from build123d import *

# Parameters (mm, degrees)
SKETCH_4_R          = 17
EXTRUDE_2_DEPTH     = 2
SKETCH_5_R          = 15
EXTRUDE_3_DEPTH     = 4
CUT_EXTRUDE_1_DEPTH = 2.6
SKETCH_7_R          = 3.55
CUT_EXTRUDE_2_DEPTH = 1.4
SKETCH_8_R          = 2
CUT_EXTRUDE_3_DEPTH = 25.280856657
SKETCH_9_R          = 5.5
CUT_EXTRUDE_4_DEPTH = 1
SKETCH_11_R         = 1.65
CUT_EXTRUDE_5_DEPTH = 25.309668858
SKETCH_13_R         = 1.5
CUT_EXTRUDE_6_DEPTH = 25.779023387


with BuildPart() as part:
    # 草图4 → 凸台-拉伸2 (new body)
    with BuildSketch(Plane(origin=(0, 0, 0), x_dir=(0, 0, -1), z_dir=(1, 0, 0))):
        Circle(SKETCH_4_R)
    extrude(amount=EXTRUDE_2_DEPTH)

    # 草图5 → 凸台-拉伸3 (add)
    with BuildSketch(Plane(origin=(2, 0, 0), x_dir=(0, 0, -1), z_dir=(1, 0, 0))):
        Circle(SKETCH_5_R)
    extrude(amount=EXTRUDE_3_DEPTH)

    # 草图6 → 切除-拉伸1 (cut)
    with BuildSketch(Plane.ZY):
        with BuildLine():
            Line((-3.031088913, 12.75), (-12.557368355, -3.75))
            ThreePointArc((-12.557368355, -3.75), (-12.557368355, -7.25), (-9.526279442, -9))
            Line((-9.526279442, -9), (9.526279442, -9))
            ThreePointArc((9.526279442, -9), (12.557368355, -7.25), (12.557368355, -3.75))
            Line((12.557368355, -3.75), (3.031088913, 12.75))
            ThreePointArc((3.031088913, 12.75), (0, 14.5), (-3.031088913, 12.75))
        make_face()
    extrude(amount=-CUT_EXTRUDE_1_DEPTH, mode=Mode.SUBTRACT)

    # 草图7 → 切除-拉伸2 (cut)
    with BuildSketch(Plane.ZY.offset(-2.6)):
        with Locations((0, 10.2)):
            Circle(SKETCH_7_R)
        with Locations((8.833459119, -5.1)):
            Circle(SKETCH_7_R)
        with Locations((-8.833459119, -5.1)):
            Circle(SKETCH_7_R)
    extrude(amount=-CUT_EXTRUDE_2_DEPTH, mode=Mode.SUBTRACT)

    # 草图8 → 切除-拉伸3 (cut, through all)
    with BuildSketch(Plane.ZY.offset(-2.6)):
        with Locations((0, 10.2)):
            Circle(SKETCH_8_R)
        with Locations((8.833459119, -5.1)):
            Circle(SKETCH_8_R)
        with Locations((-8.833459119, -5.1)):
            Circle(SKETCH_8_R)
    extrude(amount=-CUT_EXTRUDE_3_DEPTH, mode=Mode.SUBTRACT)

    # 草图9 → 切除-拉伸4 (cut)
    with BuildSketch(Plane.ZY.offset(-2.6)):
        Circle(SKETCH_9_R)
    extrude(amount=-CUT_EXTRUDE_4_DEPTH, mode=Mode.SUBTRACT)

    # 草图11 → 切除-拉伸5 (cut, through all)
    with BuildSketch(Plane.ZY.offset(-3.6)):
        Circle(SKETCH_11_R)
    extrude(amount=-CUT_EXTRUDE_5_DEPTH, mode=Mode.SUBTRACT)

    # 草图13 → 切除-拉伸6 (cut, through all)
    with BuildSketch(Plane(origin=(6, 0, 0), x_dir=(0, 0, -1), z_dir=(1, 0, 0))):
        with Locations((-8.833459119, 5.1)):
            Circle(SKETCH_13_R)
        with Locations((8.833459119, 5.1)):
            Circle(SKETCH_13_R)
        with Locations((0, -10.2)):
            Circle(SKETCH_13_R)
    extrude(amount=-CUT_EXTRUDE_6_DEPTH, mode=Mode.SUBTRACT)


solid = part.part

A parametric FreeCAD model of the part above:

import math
import FreeCAD as App
import Part
import Sketcher
from FreeCAD import Vector
Q = App.Units.Quantity

doc = App.newDocument("Part")
params = doc.addObject("Spreadsheet::Sheet", "Params")
for row, (alias, value) in enumerate([
    ("sketch1_diameter", "34 mm"),
    ("pad1_length", "2 mm"),
    ("sketch2_diameter", "30 mm"),
    ("pad2_length", "4 mm"),
    ("sketch3_radius", "3.5 mm"),
    ("pocket1_length", "2.6 mm"),
    ("sketch4_diameter", "7.1 mm"),
    ("pocket2_length", "1.4 mm"),
    ("sketch5_diameter", "4 mm"),
    ("sketch6_diameter", "11 mm"),
    ("pocket4_length", "1 mm"),
    ("sketch7_diameter", "3.3 mm"),
    ("sketch8_diameter", "3 mm"),
], start=1):
    params.set(f"A{row}", alias)
    params.set(f"B{row}", "=" + value)
    params.setAlias(f"B{row}", alias)

body = doc.addObject("PartDesign::Body", "Body")

# Sketch on YZ plane
sketch1 = body.newObject("Sketcher::SketchObject", "Sketch")
sketch1.AttachmentSupport = (doc.getObject("YZ_Plane"), [""])
sketch1.MapMode = "FlatFace"
sketch1.addGeometry(Part.Circle(Vector(0, 0, 0), Vector(0, 0, 1), 17), False)
sketch1.addConstraint([
    Sketcher.Constraint("Coincident", 0, 3, -1, 1),
    Sketcher.Constraint("Diameter", 0, Q("34 mm")),
])
sketch1.setExpression("Constraints[1]", "Params.sketch1_diameter")
pad1 = body.newObject("PartDesign::Pad", "Pad")
pad1.Profile = sketch1
pad1.setExpression("Length", "Params.pad1_length")

# Sketch on YZ plane
sketch2 = body.newObject("Sketcher::SketchObject", "Sketch001")
sketch2.AttachmentSupport = (doc.getObject("YZ_Plane"), [""])
sketch2.MapMode = "FlatFace"
sketch2.AttachmentOffset = App.Placement(Vector(0, 0, 2), App.Rotation())
sketch2.addGeometry(Part.Circle(Vector(0, 0, 0), Vector(0, 0, 1), 15), False)
sketch2.addConstraint([
    Sketcher.Constraint("Coincident", 0, 3, -1, 1),
    Sketcher.Constraint("Diameter", 0, Q("30 mm")),
])
sketch2.setExpression("Constraints[1]", "Params.sketch2_diameter")
pad2 = body.newObject("PartDesign::Pad", "Pad001")
pad2.Profile = sketch2
pad2.setExpression("Length", "Params.pad2_length")

# Sketch on YZ plane
sketch3 = body.newObject("Sketcher::SketchObject", "Sketch002")
sketch3.AttachmentSupport = (doc.getObject("YZ_Plane"), [""])
sketch3.MapMode = "FlatFace"
sketch3.addGeometry([
    Part.LineSegment(Vector(12.8, -3, 0), Vector(-3.8, -12.6, 0)),  # 0
    Part.ArcOfCircle(Part.Circle(Vector(-5.5, -9.5, 0), Vector(0, 0, 1), 3.5), math.radians(180), math.radians(300)),  # 1
    Part.LineSegment(Vector(-9, -9.5, 0), Vector(-9, 9.5, 0)),  # 2
    Part.ArcOfCircle(Part.Circle(Vector(-5.5, 9.5, 0), Vector(0, 0, 1), 3.5), math.radians(60), math.radians(180)),  # 3
    Part.LineSegment(Vector(-3.8, 12.6, 0), Vector(12.8, 3, 0)),  # 4
    Part.ArcOfCircle(Part.Circle(Vector(11, 0, 0), Vector(0, 0, 1), 3.5), math.radians(-60), math.radians(60)),  # 5
], False)
sketch3.addConstraint([
    Sketcher.Constraint("Tangent", 0, 2, 1, 2),
    Sketcher.Constraint("Tangent", 1, 1, 2, 1),
    Sketcher.Constraint("Tangent", 2, 2, 3, 2),
    Sketcher.Constraint("Tangent", 3, 1, 4, 1),
    Sketcher.Constraint("Tangent", 4, 2, 5, 2),
    Sketcher.Constraint("Tangent", 5, 1, 0, 1),
    Sketcher.Constraint("Vertical", 2),
    Sketcher.Constraint("Equal", 1, 3),
    Sketcher.Constraint("Equal", 3, 5),
    Sketcher.Constraint("Symmetric", 0, 2, 3, 1, -1),
    Sketcher.Constraint("Radius", 1, Q("3.5 mm")),
    Sketcher.Constraint("Angle", 0, Q("-150 deg")),
    Sketcher.Constraint("DistanceX", -1, 1, 5, 3, Q("11 mm")),
    Sketcher.Constraint("DistanceX", 1, 1, -1, 1, Q("9 mm")),
])
sketch3.setExpression("Constraints[10]", "Params.sketch3_radius")
pocket1 = body.newObject("PartDesign::Pocket", "Pocket")
pocket1.Profile = sketch3
pocket1.setExpression("Length", "Params.pocket1_length")
pocket1.Reversed = True

# Sketch on YZ plane
sketch4 = body.newObject("Sketcher::SketchObject", "Sketch003")
sketch4.AttachmentSupport = (doc.getObject("YZ_Plane"), [""])
sketch4.MapMode = "FlatFace"
sketch4.AttachmentOffset = App.Placement(Vector(0, 0, 2.6), App.Rotation())
sketch4.addGeometry([
    Part.Circle(Vector(10.2, 0, 0), Vector(0, 0, 1), 3.5),
    Part.Circle(Vector(-5.1, 8.8, 0), Vector(0, 0, 1), 3.5),
    Part.Circle(Vector(-5.1, -8.8, 0), Vector(0, 0, 1), 3.5),
], False)
sketch4.addConstraint([
    Sketcher.Constraint("Equal", 0, 1),
    Sketcher.Constraint("Equal", 1, 2),
    Sketcher.Constraint("Symmetric", 1, 3, 2, 3, -1),
    Sketcher.Constraint("PointOnObject", 0, 3, -1),
    Sketcher.Constraint("Diameter", 0, Q("7.1 mm")),
    Sketcher.Constraint("DistanceX", -1, 1, 0, 3, Q("10.2 mm")),
    Sketcher.Constraint("DistanceX", 1, 3, -1, 1, Q("5.1 mm")),
    Sketcher.Constraint("DistanceY", -1, 1, 1, 3, Q("8.833459 mm")),
])
sketch4.setExpression("Constraints[4]", "Params.sketch4_diameter")
pocket2 = body.newObject("PartDesign::Pocket", "Pocket001")
pocket2.Profile = sketch4
pocket2.setExpression("Length", "Params.pocket2_length")
pocket2.Reversed = True

# Sketch on YZ plane
sketch5 = body.newObject("Sketcher::SketchObject", "Sketch004")
sketch5.AttachmentSupport = (doc.getObject("YZ_Plane"), [""])
sketch5.MapMode = "FlatFace"
sketch5.AttachmentOffset = App.Placement(Vector(0, 0, 2.6), App.Rotation())
sketch5.addGeometry([
    Part.Circle(Vector(10.2, 0, 0), Vector(0, 0, 1), 2),
    Part.Circle(Vector(-5.1, 8.8, 0), Vector(0, 0, 1), 2),
    Part.Circle(Vector(-5.1, -8.8, 0), Vector(0, 0, 1), 2),
], False)
sketch5.addConstraint([
    Sketcher.Constraint("Equal", 0, 1),
    Sketcher.Constraint("Equal", 1, 2),
    Sketcher.Constraint("Symmetric", 1, 3, 2, 3, -1),
    Sketcher.Constraint("PointOnObject", 0, 3, -1),
    Sketcher.Constraint("Diameter", 0, Q("4 mm")),
    Sketcher.Constraint("DistanceX", -1, 1, 0, 3, Q("10.2 mm")),
    Sketcher.Constraint("DistanceX", 1, 3, -1, 1, Q("5.1 mm")),
    Sketcher.Constraint("DistanceY", -1, 1, 1, 3, Q("8.833459 mm")),
])
sketch5.setExpression("Constraints[4]", "Params.sketch5_diameter")
pocket3 = body.newObject("PartDesign::Pocket", "Pocket002")
pocket3.Profile = sketch5
pocket3.Type = "ThroughAll"
pocket3.Reversed = True

# Sketch on YZ plane
sketch6 = body.newObject("Sketcher::SketchObject", "Sketch005")
sketch6.AttachmentSupport = (doc.getObject("YZ_Plane"), [""])
sketch6.MapMode = "FlatFace"
sketch6.AttachmentOffset = App.Placement(Vector(0, 0, 2.6), App.Rotation())
sketch6.addGeometry(Part.Circle(Vector(0, 0, 0), Vector(0, 0, 1), 6), False)
sketch6.addConstraint([
    Sketcher.Constraint("Coincident", 0, 3, -1, 1),
    Sketcher.Constraint("Diameter", 0, Q("11 mm")),
])
sketch6.setExpression("Constraints[1]", "Params.sketch6_diameter")
pocket4 = body.newObject("PartDesign::Pocket", "Pocket003")
pocket4.Profile = sketch6
pocket4.setExpression("Length", "Params.pocket4_length")
pocket4.Reversed = True

# Sketch on YZ plane
sketch7 = body.newObject("Sketcher::SketchObject", "Sketch006")
sketch7.AttachmentSupport = (doc.getObject("YZ_Plane"), [""])
sketch7.MapMode = "FlatFace"
sketch7.AttachmentOffset = App.Placement(Vector(0, 0, 3.6), App.Rotation())
sketch7.addGeometry(Part.Circle(Vector(0, 0, 0), Vector(0, 0, 1), 1.6), False)
sketch7.addConstraint([
    Sketcher.Constraint("Coincident", 0, 3, -1, 1),
    Sketcher.Constraint("Diameter", 0, Q("3.3 mm")),
])
sketch7.setExpression("Constraints[1]", "Params.sketch7_diameter")
pocket5 = body.newObject("PartDesign::Pocket", "Pocket004")
pocket5.Profile = sketch7
pocket5.Type = "ThroughAll"
pocket5.Reversed = True

# Sketch on YZ plane
sketch8 = body.newObject("Sketcher::SketchObject", "Sketch007")
sketch8.AttachmentSupport = (doc.getObject("YZ_Plane"), [""])
sketch8.MapMode = "FlatFace"
sketch8.AttachmentOffset = App.Placement(Vector(0, 0, 6), App.Rotation())
sketch8.addGeometry([
    Part.Circle(Vector(5.1, 8.8, 0), Vector(0, 0, 1), 1.5),
    Part.Circle(Vector(5.1, -8.8, 0), Vector(0, 0, 1), 1.5),
    Part.Circle(Vector(-10.2, 0, 0), Vector(0, 0, 1), 1.5),
], False)
sketch8.addConstraint([
    Sketcher.Constraint("Equal", 0, 1),
    Sketcher.Constraint("Equal", 1, 2),
    Sketcher.Constraint("Symmetric", 0, 3, 1, 3, -1),
    Sketcher.Constraint("PointOnObject", 2, 3, -1),
    Sketcher.Constraint("Diameter", 0, Q("3 mm")),
    Sketcher.Constraint("DistanceX", -1, 1, 0, 3, Q("5.1 mm")),
    Sketcher.Constraint("DistanceX", 2, 3, -1, 1, Q("10.2 mm")),
    Sketcher.Constraint("DistanceY", -1, 1, 0, 3, Q("8.833459 mm")),
])
sketch8.setExpression("Constraints[4]", "Params.sketch8_diameter")
pocket6 = body.newObject("PartDesign::Pocket", "Pocket005")
pocket6.Profile = sketch8
pocket6.Type = "ThroughAll"

doc.recompute()
